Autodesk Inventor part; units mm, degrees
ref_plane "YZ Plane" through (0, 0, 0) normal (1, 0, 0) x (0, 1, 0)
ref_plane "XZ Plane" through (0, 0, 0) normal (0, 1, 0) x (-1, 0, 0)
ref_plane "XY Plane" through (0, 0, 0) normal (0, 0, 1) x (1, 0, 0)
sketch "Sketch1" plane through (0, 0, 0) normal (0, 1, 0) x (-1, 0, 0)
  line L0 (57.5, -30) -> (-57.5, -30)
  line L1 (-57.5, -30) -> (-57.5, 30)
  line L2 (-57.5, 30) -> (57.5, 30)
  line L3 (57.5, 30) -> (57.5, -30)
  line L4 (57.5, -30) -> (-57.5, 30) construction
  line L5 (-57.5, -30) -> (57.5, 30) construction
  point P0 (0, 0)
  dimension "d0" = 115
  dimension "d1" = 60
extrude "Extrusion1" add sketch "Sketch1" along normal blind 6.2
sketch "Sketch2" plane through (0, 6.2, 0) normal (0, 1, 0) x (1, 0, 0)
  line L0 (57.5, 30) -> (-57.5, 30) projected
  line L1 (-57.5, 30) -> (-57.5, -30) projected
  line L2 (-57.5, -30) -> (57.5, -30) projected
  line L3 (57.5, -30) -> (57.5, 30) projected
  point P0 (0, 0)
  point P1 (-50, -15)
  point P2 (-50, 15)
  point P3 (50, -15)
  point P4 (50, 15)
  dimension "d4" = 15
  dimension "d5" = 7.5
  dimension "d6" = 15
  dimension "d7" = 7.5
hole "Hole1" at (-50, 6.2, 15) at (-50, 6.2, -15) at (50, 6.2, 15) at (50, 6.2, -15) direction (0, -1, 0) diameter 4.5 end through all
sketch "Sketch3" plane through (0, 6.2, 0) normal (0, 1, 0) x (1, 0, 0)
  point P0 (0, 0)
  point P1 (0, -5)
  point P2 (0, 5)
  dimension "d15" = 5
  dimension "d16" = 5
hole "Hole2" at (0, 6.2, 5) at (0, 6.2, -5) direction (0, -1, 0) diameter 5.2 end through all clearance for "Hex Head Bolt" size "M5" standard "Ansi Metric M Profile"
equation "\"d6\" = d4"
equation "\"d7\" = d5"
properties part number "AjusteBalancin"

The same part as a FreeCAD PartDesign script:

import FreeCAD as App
import Part
import Sketcher


def add_polygon(sketch, points):
    """Adds a closed chain of lines whose ends are joined by coincident constraints."""
    first, n = sketch.GeometryCount, len(points)
    for a, b in zip(points, points[1:] + points[:1]):
        sketch.addGeometry(Part.LineSegment(App.Vector(*a, 0), App.Vector(*b, 0)), False)
    for i in range(n):
        sketch.addConstraint(Sketcher.Constraint("Coincident", first + i, 2, first + (i + 1) % n, 1))

doc = App.newDocument("Part")
body = doc.addObject("PartDesign::Body", "Body")

sketch1 = body.newObject("Sketcher::SketchObject", "Sketch")
sketch1.AttachmentSupport = (doc.getObject("XZ_Plane"), [""])
sketch1.MapMode = "FlatFace"
add_polygon(sketch1, [(58, -30), (-58, -30), (-58, 30), (58, 30)])
sketch1.addConstraint(Sketcher.Constraint("Horizontal", 0))
sketch1.addConstraint(Sketcher.Constraint("Vertical", 1))
sketch1.addConstraint(Sketcher.Constraint("Horizontal", 2))
sketch1.addConstraint(Sketcher.Constraint("Vertical", 3))
sketch1.addConstraint(Sketcher.Constraint("Symmetric", 0, 2, 2, 2, -1, 1))
sketch1.addConstraint(Sketcher.Constraint("DistanceX", 0, 2, 0, 1, 115.0))
sketch1.addConstraint(Sketcher.Constraint("DistanceY", 1, 1, 1, 2, 60.0))
pad1 = body.newObject("PartDesign::Pad", "Pad")
pad1.Profile = sketch1
pad1.Length = 6.2
pad1.Reversed = True

sketch2 = body.newObject("Sketcher::SketchObject", "Sketch001")
sketch2.AttachmentSupport = (doc.getObject("XZ_Plane"), [""])
sketch2.MapMode = "FlatFace"
sketch2.AttachmentOffset = App.Placement(App.Vector(0, 0, -6.2), App.Rotation())
sketch2.addGeometry(Part.Circle(App.Vector(-50, 15, 0), App.Vector(0, 0, 1), 2.2), False)
sketch2.addGeometry(Part.Circle(App.Vector(-50, -15, 0), App.Vector(0, 0, 1), 2.2), False)
sketch2.addGeometry(Part.Circle(App.Vector(50, 15, 0), App.Vector(0, 0, 1), 2.2), False)
sketch2.addGeometry(Part.Circle(App.Vector(50, -15, 0), App.Vector(0, 0, 1), 2.2), False)
sketch2.addConstraint(Sketcher.Constraint("Equal", 0, 1))
sketch2.addConstraint(Sketcher.Constraint("Equal", 1, 2))
sketch2.addConstraint(Sketcher.Constraint("Equal", 2, 3))
sketch2.addConstraint(Sketcher.Constraint("Symmetric", 1, 3, 2, 3, -1, 1))
sketch2.addConstraint(Sketcher.Constraint("Symmetric", 0, 3, 3, 3, -1, 1))
sketch2.addConstraint(Sketcher.Constraint("Symmetric", 0, 3, 2, 3, -2))
sketch2.addConstraint(Sketcher.Constraint("Diameter", 0, 4.5))
sketch2.addConstraint(Sketcher.Constraint("DistanceX", 0, 3, -1, 1, 50.0))
sketch2.addConstraint(Sketcher.Constraint("DistanceY", -1, 1, 0, 3, 15.0))
doc.recompute()
hole = body.newObject("PartDesign::Hole", "Hole")
hole.Profile = sketch2
hole.ThreadType = "None"
hole.Diameter = 4.5
hole.DepthType = "ThroughAll"
hole.Reversed = True

sketch3 = body.newObject("Sketcher::SketchObject", "Sketch002")
sketch3.AttachmentSupport = (doc.getObject("XZ_Plane"), [""])
sketch3.MapMode = "FlatFace"
sketch3.AttachmentOffset = App.Placement(App.Vector(0, 0, -6.2), App.Rotation())
sketch3.addGeometry(Part.Circle(App.Vector(0, 5, 0), App.Vector(0, 0, 1), 2.6), False)
sketch3.addGeometry(Part.Circle(App.Vector(0, -5, 0), App.Vector(0, 0, 1), 2.6), False)
sketch3.addConstraint(Sketcher.Constraint("Equal", 0, 1))
sketch3.addConstraint(Sketcher.Constraint("Symmetric", 0, 3, 1, 3, -1, 1))
sketch3.addConstraint(Sketcher.Constraint("PointOnObject", 0, 3, -2))
sketch3.addConstraint(Sketcher.Constraint("Diameter", 0, 5.2))
sketch3.addConstraint(Sketcher.Constraint("DistanceY", -1, 1, 0, 3, 5.0))
doc.recompute()
hole2 = body.newObject("PartDesign::Hole", "Hole001")
hole2.Profile = sketch3
hole2.ThreadType = "None"
hole2.Diameter = 5.2
hole2.DepthType = "ThroughAll"
hole2.Reversed = True

doc.recompute()
